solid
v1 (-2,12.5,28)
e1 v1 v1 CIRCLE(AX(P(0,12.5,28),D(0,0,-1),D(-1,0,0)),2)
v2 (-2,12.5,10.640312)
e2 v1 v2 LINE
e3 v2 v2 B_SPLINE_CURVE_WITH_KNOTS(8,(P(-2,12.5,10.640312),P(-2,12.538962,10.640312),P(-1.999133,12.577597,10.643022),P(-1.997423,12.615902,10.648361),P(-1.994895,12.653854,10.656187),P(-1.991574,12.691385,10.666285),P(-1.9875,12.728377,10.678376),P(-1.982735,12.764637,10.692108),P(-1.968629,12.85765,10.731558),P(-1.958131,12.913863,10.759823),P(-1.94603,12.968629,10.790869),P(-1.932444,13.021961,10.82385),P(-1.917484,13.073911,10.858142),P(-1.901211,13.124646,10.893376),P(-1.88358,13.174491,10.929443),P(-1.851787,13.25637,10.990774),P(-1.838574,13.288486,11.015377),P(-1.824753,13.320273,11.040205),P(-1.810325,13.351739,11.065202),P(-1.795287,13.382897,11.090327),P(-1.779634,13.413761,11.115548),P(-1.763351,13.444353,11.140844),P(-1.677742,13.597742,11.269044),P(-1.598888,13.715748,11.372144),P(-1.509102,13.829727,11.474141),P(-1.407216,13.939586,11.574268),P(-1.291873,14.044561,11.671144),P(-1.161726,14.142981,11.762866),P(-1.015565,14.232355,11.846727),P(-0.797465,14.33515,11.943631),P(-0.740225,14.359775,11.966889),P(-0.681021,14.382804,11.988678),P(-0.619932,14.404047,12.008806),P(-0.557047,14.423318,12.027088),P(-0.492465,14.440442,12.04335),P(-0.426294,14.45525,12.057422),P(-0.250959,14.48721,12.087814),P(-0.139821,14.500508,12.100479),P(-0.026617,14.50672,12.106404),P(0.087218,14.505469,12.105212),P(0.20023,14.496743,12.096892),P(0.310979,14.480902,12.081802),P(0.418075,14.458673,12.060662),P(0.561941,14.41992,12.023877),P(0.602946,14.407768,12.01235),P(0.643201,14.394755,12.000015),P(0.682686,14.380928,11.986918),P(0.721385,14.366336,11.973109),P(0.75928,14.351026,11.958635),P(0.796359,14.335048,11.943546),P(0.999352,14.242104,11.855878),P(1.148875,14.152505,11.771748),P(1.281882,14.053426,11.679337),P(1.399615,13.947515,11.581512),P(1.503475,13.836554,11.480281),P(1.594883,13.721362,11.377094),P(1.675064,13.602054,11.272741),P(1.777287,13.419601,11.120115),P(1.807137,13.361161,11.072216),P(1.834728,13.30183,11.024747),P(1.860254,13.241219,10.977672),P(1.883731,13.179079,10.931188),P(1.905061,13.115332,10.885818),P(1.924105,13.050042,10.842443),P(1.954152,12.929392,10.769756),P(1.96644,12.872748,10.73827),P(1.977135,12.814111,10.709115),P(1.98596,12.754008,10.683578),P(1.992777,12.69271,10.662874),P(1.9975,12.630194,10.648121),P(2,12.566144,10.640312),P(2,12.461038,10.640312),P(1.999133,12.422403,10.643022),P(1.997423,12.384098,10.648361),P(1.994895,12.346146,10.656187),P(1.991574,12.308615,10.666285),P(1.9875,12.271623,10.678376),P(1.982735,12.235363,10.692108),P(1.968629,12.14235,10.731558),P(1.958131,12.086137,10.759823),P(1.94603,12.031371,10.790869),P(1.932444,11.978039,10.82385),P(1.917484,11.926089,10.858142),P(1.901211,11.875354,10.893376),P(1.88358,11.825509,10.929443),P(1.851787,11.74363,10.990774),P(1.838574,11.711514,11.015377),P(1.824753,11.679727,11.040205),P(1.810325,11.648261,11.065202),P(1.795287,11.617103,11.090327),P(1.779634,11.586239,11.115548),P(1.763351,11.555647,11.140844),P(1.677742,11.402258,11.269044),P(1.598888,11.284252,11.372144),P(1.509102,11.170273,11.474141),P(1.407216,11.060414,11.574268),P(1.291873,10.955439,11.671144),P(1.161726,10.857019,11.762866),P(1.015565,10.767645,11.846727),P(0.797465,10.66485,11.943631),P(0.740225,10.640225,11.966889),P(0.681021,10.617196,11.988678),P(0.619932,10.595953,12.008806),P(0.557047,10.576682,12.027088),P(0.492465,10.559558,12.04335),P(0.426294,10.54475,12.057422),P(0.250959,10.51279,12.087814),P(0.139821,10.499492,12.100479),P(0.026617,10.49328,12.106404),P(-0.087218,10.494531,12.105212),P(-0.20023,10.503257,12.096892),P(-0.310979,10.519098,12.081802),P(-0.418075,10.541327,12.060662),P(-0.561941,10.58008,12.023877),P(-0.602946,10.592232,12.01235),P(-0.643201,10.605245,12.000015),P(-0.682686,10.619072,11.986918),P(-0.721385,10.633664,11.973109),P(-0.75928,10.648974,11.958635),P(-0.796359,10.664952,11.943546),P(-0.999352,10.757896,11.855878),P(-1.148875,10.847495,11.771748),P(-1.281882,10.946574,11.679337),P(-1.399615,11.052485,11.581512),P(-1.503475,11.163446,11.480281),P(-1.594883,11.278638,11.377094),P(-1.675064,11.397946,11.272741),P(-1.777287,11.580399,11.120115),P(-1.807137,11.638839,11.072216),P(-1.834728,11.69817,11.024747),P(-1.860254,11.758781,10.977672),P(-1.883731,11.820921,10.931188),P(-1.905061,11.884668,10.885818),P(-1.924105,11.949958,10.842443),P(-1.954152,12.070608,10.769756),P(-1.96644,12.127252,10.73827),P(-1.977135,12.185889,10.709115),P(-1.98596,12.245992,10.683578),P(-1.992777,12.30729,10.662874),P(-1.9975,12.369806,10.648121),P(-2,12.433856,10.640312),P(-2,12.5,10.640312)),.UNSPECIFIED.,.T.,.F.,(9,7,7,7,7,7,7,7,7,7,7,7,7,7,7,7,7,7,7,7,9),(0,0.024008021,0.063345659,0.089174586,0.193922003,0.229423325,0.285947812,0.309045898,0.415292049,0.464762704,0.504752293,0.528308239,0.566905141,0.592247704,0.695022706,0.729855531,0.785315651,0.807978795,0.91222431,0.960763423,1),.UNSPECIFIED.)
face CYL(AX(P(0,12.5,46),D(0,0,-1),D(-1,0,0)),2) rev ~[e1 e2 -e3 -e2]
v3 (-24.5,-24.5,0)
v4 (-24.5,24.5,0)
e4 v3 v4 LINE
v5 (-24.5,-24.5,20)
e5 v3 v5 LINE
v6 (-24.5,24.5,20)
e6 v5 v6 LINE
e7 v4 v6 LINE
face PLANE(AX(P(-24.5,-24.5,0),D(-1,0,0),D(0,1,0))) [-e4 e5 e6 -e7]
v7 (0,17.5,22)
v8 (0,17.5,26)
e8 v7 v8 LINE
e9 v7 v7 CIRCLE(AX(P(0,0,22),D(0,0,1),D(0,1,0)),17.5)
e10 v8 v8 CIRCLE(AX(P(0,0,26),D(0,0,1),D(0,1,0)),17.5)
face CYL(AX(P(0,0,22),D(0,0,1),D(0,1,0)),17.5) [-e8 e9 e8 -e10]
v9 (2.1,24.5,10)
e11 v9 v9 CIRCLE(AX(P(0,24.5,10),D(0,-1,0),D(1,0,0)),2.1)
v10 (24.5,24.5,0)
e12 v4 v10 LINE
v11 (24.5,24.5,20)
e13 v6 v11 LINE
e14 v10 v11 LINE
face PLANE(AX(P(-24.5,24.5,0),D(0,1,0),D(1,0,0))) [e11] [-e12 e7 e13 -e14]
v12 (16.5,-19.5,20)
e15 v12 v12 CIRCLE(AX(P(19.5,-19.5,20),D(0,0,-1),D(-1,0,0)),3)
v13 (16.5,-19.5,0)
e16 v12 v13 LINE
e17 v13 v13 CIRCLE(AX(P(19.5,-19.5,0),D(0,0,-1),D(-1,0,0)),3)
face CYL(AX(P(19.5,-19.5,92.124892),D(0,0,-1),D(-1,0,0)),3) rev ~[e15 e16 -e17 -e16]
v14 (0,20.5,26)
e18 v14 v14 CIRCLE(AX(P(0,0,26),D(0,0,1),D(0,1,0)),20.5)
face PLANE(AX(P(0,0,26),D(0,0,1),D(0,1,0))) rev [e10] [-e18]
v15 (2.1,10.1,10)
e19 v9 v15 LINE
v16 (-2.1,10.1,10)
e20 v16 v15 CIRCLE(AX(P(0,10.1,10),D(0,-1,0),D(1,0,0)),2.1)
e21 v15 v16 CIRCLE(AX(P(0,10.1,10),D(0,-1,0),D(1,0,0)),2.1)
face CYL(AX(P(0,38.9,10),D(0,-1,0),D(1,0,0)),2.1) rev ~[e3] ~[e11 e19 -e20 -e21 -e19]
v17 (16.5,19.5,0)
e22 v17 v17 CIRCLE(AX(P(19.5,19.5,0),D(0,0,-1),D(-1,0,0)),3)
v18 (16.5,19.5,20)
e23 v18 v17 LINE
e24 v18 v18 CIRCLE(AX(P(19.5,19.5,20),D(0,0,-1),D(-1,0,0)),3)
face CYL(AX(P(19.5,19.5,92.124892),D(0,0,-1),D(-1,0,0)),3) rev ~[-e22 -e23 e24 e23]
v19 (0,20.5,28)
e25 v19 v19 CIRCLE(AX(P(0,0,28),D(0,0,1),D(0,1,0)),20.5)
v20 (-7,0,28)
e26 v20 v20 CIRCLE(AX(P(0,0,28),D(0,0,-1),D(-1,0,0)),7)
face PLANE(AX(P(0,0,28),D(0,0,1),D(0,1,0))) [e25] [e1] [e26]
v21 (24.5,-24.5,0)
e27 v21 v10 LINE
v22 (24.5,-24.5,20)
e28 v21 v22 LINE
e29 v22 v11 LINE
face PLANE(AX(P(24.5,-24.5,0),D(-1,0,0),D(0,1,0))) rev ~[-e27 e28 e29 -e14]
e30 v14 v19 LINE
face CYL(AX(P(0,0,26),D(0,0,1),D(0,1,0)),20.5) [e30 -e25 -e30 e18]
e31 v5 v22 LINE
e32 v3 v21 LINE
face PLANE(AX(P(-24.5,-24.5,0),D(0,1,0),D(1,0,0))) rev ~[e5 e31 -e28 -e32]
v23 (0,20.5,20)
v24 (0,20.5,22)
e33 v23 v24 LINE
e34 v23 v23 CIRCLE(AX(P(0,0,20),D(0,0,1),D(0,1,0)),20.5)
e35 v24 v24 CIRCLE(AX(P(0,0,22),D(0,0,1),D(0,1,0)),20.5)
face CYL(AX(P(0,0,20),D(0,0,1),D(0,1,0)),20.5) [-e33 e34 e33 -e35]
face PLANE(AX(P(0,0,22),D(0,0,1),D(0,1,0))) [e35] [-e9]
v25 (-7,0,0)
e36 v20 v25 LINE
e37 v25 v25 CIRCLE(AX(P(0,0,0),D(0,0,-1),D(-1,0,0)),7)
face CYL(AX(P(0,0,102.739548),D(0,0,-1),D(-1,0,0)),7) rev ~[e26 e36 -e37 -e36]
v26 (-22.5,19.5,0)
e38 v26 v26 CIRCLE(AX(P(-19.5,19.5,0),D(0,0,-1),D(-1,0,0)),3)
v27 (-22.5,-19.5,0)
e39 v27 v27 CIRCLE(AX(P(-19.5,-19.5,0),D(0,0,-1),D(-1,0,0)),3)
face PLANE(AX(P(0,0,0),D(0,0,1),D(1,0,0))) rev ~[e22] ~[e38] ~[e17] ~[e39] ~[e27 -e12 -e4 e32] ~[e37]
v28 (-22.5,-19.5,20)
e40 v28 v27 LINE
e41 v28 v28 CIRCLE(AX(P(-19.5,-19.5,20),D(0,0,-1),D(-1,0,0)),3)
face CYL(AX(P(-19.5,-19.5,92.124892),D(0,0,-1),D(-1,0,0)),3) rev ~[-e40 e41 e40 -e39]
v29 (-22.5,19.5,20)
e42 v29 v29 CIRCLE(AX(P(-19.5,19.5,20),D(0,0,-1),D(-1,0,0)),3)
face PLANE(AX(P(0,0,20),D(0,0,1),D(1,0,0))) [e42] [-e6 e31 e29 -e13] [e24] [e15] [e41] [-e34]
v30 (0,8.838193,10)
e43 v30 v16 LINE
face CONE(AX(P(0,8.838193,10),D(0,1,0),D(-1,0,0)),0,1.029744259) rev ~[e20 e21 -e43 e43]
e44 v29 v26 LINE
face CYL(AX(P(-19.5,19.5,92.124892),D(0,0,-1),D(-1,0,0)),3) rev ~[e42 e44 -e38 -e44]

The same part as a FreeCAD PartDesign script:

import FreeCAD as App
import Part
import Sketcher

V = App.Vector


def add_polygon(sketch, points):
    """Adds a closed chain of lines whose ends are joined by coincident constraints."""
    first, n = sketch.GeometryCount, len(points)
    for a, b in zip(points, points[1:] + points[:1]):
        sketch.addGeometry(Part.LineSegment(App.Vector(*a, 0), App.Vector(*b, 0)), False)
    for i in range(n):
        sketch.addConstraint(Sketcher.Constraint("Coincident", first + i, 2, first + (i + 1) % n, 1))

doc = App.newDocument("Part")
body = doc.addObject("PartDesign::Body", "Body")

# Sketch on XY plane
sketch1 = doc.addObject("Sketcher::SketchObject", "Sketch")
body.addObject(sketch1)
sketch1.AttachmentSupport = (doc.XY_Plane, [""])
sketch1.MapMode = "FlatFace"
add_polygon(sketch1, [(-24.5, 24.5), (-24.5, -24.5), (24.5, -24.5), (24.5, 24.5)])  # lines 0-3
sketch1.addConstraint(Sketcher.Constraint("Vertical", 0))
sketch1.addConstraint(Sketcher.Constraint("Horizontal", 1))
sketch1.addConstraint(Sketcher.Constraint("Vertical", 2))
sketch1.addConstraint(Sketcher.Constraint("Horizontal", 3))
sketch1.addConstraint(Sketcher.Constraint("Symmetric", 0, 2, 2, 2, -1, 1))
sketch1.addConstraint(Sketcher.Constraint("Equal", 3, 0))
sketch1.addConstraint(Sketcher.Constraint("DistanceX", 1, 1, 1, 2, 49.0))
pad1 = doc.addObject("PartDesign::Pad", "Pad")
body.addObject(pad1)
pad1.Profile = sketch1
pad1.Length = 20

# Sketch on XY plane
sketch2 = doc.addObject("Sketcher::SketchObject", "Sketch001")
body.addObject(sketch2)
sketch2.AttachmentSupport = (doc.XY_Plane, [""])
sketch2.MapMode = "FlatFace"
sketch2.AttachmentOffset = App.Placement(V(0, 0, 20), App.Rotation())
sketch2.addGeometry(Part.Circle(V(-19.5, -19.5, 0), V(0, 0, 1), 3), False)
sketch2.addGeometry(Part.Circle(V(-19.5, 19.5, 0), V(0, 0, 1), 3), False)
sketch2.addGeometry(Part.Circle(V(19.5, 19.5, 0), V(0, 0, 1), 3), False)
sketch2.addGeometry(Part.Circle(V(19.5, -19.5, 0), V(0, 0, 1), 3), False)
sketch2.addConstraint(Sketcher.Constraint("Equal", 0, 1))
sketch2.addConstraint(Sketcher.Constraint("Equal", 1, 2))
sketch2.addConstraint(Sketcher.Constraint("Equal", 2, 3))
sketch2.addConstraint(Sketcher.Constraint("Symmetric", 0, 3, 2, 3, -1, 1))
sketch2.addConstraint(Sketcher.Constraint("Symmetric", 1, 3, 3, 3, -1, 1))
sketch2.addConstraint(Sketcher.Constraint("Symmetric", 1, 3, 2, 3, -2))
sketch2.addConstraint(Sketcher.Constraint("Diameter", 0, 6.0))
sketch2.addConstraint(Sketcher.Constraint("DistanceY", 0, 3, 1, 3, 39.0))
sketch2.addConstraint(Sketcher.Constraint("DistanceX", 1, 3, 2, 3, 39.0))
doc.recompute()
hole = doc.addObject("PartDesign::Hole", "Hole")
body.addObject(hole)
hole.Profile = sketch2
hole.ThreadType = "None"
hole.Diameter = 6
hole.DepthType = "ThroughAll"

# Sketch on YZ plane
sketch3 = doc.addObject("Sketcher::SketchObject", "Sketch002")
body.addObject(sketch3)
sketch3.AttachmentSupport = (doc.YZ_Plane, [""])
sketch3.MapMode = "FlatFace"
add_polygon(sketch3, [(0, 28), (0, 20), (20.5, 20), (20.5, 22), (17.5, 22), (17.5, 26), (20.5, 26), (20.5, 28)])  # lines 0-7
sketch3.addConstraint(Sketcher.Constraint("Vertical", 0))
sketch3.addConstraint(Sketcher.Constraint("Horizontal", 1))
sketch3.addConstraint(Sketcher.Constraint("Vertical", 2))
sketch3.addConstraint(Sketcher.Constraint("Horizontal", 3))
sketch3.addConstraint(Sketcher.Constraint("Vertical", 4))
sketch3.addConstraint(Sketcher.Constraint("Horizontal", 5))
sketch3.addConstraint(Sketcher.Constraint("Vertical", 6))
sketch3.addConstraint(Sketcher.Constraint("Horizontal", 7))
sketch3.addConstraint(Sketcher.Constraint("PointOnObject", 0, 2, -2))
sketch3.addConstraint(Sketcher.Constraint("Vertical", 2, 2, 5, 2))
sketch3.addConstraint(Sketcher.Constraint("Equal", 2, 6))
sketch3.addConstraint(Sketcher.Constraint("DistanceX", 3, 2, 3, 1, 3.0))
sketch3.addConstraint(Sketcher.Constraint("DistanceY", 0, 2, 0, 1, 8.0))
sketch3.addConstraint(Sketcher.Constraint("DistanceY", 2, 1, 2, 2, 2.0))
sketch3.addConstraint(Sketcher.Constraint("DistanceX", 1, 1, 1, 2, 20.5))
sketch3.addConstraint(Sketcher.Constraint("DistanceY", -1, 1, 0, 2, 20.0))
revolution = doc.addObject("PartDesign::Revolution", "Revolution")
body.addObject(revolution)
revolution.Profile = sketch3
revolution.ReferenceAxis = (sketch3, ["V_Axis"])
revolution.Angle = 360

# Sketch on XZ plane
sketch4 = doc.addObject("Sketcher::SketchObject", "Sketch003")
body.addObject(sketch4)
sketch4.AttachmentSupport = (doc.XZ_Plane, [""])
sketch4.MapMode = "FlatFace"
sketch4.AttachmentOffset = App.Placement(V(0, 0, -24.5), App.Rotation())
sketch4.addGeometry(Part.Circle(V(0, 10, 0), V(0, 0, 1), 2.1), False)
sketch4.addConstraint(Sketcher.Constraint("PointOnObject", 0, 3, -2))
sketch4.addConstraint(Sketcher.Constraint("Diameter", 0, 4.2))
sketch4.addConstraint(Sketcher.Constraint("DistanceY", -1, 1, 0, 3, 10.0))
doc.recompute()
hole2 = doc.addObject("PartDesign::Hole", "Hole001")
body.addObject(hole2)
hole2.Profile = sketch4
hole2.ThreadType = "None"
hole2.Diameter = 4.2
hole2.DepthType = "Dimension"
hole2.Depth = 14.4
hole2.DrillPoint = "Angled"
hole2.DrillPointAngle = 118
hole2.Reversed = True

# Sketch on XY plane
sketch5 = doc.addObject("Sketcher::SketchObject", "Sketch004")
body.addObject(sketch5)
sketch5.AttachmentSupport = (doc.XY_Plane, [""])
sketch5.MapMode = "FlatFace"
sketch5.AttachmentOffset = App.Placement(V(0, 0, 28), App.Rotation())
sketch5.addGeometry(Part.Circle(V(0, 12.5, 0), V(0, 0, 1), 2), False)
sketch5.addConstraint(Sketcher.Constraint("PointOnObject", 0, 3, -2))
sketch5.addConstraint(Sketcher.Constraint("Diameter", 0, 4.0))
sketch5.addConstraint(Sketcher.Constraint("DistanceY", -1, 1, 0, 3, 12.5))
doc.recompute()
hole3 = doc.addObject("PartDesign::Hole", "Hole002")
body.addObject(hole3)
hole3.Profile = sketch5
hole3.ThreadType = "None"
hole3.Diameter = 4
hole3.DepthType = "Dimension"
hole3.Depth = 18
hole3.DrillPoint = "Angled"
hole3.DrillPointAngle = 118

# Sketch on XY plane
sketch6 = doc.addObject("Sketcher::SketchObject", "Sketch005")
body.addObject(sketch6)
sketch6.AttachmentSupport = (doc.XY_Plane, [""])
sketch6.MapMode = "FlatFace"
sketch6.AttachmentOffset = App.Placement(V(0, 0, 28), App.Rotation())
sketch6.addGeometry(Part.Circle(V(0, 0, 0), V(0, 0, 1), 7), False)
sketch6.addConstraint(Sketcher.Constraint("Coincident", 0, 3, -1, 1))
sketch6.addConstraint(Sketcher.Constraint("Diameter", 0, 14.0))
doc.recompute()
hole4 = doc.addObject("PartDesign::Hole", "Hole003")
body.addObject(hole4)
hole4.Profile = sketch6
hole4.ThreadType = "None"
hole4.Diameter = 14
hole4.DepthType = "ThroughAll"

doc.recompute()
